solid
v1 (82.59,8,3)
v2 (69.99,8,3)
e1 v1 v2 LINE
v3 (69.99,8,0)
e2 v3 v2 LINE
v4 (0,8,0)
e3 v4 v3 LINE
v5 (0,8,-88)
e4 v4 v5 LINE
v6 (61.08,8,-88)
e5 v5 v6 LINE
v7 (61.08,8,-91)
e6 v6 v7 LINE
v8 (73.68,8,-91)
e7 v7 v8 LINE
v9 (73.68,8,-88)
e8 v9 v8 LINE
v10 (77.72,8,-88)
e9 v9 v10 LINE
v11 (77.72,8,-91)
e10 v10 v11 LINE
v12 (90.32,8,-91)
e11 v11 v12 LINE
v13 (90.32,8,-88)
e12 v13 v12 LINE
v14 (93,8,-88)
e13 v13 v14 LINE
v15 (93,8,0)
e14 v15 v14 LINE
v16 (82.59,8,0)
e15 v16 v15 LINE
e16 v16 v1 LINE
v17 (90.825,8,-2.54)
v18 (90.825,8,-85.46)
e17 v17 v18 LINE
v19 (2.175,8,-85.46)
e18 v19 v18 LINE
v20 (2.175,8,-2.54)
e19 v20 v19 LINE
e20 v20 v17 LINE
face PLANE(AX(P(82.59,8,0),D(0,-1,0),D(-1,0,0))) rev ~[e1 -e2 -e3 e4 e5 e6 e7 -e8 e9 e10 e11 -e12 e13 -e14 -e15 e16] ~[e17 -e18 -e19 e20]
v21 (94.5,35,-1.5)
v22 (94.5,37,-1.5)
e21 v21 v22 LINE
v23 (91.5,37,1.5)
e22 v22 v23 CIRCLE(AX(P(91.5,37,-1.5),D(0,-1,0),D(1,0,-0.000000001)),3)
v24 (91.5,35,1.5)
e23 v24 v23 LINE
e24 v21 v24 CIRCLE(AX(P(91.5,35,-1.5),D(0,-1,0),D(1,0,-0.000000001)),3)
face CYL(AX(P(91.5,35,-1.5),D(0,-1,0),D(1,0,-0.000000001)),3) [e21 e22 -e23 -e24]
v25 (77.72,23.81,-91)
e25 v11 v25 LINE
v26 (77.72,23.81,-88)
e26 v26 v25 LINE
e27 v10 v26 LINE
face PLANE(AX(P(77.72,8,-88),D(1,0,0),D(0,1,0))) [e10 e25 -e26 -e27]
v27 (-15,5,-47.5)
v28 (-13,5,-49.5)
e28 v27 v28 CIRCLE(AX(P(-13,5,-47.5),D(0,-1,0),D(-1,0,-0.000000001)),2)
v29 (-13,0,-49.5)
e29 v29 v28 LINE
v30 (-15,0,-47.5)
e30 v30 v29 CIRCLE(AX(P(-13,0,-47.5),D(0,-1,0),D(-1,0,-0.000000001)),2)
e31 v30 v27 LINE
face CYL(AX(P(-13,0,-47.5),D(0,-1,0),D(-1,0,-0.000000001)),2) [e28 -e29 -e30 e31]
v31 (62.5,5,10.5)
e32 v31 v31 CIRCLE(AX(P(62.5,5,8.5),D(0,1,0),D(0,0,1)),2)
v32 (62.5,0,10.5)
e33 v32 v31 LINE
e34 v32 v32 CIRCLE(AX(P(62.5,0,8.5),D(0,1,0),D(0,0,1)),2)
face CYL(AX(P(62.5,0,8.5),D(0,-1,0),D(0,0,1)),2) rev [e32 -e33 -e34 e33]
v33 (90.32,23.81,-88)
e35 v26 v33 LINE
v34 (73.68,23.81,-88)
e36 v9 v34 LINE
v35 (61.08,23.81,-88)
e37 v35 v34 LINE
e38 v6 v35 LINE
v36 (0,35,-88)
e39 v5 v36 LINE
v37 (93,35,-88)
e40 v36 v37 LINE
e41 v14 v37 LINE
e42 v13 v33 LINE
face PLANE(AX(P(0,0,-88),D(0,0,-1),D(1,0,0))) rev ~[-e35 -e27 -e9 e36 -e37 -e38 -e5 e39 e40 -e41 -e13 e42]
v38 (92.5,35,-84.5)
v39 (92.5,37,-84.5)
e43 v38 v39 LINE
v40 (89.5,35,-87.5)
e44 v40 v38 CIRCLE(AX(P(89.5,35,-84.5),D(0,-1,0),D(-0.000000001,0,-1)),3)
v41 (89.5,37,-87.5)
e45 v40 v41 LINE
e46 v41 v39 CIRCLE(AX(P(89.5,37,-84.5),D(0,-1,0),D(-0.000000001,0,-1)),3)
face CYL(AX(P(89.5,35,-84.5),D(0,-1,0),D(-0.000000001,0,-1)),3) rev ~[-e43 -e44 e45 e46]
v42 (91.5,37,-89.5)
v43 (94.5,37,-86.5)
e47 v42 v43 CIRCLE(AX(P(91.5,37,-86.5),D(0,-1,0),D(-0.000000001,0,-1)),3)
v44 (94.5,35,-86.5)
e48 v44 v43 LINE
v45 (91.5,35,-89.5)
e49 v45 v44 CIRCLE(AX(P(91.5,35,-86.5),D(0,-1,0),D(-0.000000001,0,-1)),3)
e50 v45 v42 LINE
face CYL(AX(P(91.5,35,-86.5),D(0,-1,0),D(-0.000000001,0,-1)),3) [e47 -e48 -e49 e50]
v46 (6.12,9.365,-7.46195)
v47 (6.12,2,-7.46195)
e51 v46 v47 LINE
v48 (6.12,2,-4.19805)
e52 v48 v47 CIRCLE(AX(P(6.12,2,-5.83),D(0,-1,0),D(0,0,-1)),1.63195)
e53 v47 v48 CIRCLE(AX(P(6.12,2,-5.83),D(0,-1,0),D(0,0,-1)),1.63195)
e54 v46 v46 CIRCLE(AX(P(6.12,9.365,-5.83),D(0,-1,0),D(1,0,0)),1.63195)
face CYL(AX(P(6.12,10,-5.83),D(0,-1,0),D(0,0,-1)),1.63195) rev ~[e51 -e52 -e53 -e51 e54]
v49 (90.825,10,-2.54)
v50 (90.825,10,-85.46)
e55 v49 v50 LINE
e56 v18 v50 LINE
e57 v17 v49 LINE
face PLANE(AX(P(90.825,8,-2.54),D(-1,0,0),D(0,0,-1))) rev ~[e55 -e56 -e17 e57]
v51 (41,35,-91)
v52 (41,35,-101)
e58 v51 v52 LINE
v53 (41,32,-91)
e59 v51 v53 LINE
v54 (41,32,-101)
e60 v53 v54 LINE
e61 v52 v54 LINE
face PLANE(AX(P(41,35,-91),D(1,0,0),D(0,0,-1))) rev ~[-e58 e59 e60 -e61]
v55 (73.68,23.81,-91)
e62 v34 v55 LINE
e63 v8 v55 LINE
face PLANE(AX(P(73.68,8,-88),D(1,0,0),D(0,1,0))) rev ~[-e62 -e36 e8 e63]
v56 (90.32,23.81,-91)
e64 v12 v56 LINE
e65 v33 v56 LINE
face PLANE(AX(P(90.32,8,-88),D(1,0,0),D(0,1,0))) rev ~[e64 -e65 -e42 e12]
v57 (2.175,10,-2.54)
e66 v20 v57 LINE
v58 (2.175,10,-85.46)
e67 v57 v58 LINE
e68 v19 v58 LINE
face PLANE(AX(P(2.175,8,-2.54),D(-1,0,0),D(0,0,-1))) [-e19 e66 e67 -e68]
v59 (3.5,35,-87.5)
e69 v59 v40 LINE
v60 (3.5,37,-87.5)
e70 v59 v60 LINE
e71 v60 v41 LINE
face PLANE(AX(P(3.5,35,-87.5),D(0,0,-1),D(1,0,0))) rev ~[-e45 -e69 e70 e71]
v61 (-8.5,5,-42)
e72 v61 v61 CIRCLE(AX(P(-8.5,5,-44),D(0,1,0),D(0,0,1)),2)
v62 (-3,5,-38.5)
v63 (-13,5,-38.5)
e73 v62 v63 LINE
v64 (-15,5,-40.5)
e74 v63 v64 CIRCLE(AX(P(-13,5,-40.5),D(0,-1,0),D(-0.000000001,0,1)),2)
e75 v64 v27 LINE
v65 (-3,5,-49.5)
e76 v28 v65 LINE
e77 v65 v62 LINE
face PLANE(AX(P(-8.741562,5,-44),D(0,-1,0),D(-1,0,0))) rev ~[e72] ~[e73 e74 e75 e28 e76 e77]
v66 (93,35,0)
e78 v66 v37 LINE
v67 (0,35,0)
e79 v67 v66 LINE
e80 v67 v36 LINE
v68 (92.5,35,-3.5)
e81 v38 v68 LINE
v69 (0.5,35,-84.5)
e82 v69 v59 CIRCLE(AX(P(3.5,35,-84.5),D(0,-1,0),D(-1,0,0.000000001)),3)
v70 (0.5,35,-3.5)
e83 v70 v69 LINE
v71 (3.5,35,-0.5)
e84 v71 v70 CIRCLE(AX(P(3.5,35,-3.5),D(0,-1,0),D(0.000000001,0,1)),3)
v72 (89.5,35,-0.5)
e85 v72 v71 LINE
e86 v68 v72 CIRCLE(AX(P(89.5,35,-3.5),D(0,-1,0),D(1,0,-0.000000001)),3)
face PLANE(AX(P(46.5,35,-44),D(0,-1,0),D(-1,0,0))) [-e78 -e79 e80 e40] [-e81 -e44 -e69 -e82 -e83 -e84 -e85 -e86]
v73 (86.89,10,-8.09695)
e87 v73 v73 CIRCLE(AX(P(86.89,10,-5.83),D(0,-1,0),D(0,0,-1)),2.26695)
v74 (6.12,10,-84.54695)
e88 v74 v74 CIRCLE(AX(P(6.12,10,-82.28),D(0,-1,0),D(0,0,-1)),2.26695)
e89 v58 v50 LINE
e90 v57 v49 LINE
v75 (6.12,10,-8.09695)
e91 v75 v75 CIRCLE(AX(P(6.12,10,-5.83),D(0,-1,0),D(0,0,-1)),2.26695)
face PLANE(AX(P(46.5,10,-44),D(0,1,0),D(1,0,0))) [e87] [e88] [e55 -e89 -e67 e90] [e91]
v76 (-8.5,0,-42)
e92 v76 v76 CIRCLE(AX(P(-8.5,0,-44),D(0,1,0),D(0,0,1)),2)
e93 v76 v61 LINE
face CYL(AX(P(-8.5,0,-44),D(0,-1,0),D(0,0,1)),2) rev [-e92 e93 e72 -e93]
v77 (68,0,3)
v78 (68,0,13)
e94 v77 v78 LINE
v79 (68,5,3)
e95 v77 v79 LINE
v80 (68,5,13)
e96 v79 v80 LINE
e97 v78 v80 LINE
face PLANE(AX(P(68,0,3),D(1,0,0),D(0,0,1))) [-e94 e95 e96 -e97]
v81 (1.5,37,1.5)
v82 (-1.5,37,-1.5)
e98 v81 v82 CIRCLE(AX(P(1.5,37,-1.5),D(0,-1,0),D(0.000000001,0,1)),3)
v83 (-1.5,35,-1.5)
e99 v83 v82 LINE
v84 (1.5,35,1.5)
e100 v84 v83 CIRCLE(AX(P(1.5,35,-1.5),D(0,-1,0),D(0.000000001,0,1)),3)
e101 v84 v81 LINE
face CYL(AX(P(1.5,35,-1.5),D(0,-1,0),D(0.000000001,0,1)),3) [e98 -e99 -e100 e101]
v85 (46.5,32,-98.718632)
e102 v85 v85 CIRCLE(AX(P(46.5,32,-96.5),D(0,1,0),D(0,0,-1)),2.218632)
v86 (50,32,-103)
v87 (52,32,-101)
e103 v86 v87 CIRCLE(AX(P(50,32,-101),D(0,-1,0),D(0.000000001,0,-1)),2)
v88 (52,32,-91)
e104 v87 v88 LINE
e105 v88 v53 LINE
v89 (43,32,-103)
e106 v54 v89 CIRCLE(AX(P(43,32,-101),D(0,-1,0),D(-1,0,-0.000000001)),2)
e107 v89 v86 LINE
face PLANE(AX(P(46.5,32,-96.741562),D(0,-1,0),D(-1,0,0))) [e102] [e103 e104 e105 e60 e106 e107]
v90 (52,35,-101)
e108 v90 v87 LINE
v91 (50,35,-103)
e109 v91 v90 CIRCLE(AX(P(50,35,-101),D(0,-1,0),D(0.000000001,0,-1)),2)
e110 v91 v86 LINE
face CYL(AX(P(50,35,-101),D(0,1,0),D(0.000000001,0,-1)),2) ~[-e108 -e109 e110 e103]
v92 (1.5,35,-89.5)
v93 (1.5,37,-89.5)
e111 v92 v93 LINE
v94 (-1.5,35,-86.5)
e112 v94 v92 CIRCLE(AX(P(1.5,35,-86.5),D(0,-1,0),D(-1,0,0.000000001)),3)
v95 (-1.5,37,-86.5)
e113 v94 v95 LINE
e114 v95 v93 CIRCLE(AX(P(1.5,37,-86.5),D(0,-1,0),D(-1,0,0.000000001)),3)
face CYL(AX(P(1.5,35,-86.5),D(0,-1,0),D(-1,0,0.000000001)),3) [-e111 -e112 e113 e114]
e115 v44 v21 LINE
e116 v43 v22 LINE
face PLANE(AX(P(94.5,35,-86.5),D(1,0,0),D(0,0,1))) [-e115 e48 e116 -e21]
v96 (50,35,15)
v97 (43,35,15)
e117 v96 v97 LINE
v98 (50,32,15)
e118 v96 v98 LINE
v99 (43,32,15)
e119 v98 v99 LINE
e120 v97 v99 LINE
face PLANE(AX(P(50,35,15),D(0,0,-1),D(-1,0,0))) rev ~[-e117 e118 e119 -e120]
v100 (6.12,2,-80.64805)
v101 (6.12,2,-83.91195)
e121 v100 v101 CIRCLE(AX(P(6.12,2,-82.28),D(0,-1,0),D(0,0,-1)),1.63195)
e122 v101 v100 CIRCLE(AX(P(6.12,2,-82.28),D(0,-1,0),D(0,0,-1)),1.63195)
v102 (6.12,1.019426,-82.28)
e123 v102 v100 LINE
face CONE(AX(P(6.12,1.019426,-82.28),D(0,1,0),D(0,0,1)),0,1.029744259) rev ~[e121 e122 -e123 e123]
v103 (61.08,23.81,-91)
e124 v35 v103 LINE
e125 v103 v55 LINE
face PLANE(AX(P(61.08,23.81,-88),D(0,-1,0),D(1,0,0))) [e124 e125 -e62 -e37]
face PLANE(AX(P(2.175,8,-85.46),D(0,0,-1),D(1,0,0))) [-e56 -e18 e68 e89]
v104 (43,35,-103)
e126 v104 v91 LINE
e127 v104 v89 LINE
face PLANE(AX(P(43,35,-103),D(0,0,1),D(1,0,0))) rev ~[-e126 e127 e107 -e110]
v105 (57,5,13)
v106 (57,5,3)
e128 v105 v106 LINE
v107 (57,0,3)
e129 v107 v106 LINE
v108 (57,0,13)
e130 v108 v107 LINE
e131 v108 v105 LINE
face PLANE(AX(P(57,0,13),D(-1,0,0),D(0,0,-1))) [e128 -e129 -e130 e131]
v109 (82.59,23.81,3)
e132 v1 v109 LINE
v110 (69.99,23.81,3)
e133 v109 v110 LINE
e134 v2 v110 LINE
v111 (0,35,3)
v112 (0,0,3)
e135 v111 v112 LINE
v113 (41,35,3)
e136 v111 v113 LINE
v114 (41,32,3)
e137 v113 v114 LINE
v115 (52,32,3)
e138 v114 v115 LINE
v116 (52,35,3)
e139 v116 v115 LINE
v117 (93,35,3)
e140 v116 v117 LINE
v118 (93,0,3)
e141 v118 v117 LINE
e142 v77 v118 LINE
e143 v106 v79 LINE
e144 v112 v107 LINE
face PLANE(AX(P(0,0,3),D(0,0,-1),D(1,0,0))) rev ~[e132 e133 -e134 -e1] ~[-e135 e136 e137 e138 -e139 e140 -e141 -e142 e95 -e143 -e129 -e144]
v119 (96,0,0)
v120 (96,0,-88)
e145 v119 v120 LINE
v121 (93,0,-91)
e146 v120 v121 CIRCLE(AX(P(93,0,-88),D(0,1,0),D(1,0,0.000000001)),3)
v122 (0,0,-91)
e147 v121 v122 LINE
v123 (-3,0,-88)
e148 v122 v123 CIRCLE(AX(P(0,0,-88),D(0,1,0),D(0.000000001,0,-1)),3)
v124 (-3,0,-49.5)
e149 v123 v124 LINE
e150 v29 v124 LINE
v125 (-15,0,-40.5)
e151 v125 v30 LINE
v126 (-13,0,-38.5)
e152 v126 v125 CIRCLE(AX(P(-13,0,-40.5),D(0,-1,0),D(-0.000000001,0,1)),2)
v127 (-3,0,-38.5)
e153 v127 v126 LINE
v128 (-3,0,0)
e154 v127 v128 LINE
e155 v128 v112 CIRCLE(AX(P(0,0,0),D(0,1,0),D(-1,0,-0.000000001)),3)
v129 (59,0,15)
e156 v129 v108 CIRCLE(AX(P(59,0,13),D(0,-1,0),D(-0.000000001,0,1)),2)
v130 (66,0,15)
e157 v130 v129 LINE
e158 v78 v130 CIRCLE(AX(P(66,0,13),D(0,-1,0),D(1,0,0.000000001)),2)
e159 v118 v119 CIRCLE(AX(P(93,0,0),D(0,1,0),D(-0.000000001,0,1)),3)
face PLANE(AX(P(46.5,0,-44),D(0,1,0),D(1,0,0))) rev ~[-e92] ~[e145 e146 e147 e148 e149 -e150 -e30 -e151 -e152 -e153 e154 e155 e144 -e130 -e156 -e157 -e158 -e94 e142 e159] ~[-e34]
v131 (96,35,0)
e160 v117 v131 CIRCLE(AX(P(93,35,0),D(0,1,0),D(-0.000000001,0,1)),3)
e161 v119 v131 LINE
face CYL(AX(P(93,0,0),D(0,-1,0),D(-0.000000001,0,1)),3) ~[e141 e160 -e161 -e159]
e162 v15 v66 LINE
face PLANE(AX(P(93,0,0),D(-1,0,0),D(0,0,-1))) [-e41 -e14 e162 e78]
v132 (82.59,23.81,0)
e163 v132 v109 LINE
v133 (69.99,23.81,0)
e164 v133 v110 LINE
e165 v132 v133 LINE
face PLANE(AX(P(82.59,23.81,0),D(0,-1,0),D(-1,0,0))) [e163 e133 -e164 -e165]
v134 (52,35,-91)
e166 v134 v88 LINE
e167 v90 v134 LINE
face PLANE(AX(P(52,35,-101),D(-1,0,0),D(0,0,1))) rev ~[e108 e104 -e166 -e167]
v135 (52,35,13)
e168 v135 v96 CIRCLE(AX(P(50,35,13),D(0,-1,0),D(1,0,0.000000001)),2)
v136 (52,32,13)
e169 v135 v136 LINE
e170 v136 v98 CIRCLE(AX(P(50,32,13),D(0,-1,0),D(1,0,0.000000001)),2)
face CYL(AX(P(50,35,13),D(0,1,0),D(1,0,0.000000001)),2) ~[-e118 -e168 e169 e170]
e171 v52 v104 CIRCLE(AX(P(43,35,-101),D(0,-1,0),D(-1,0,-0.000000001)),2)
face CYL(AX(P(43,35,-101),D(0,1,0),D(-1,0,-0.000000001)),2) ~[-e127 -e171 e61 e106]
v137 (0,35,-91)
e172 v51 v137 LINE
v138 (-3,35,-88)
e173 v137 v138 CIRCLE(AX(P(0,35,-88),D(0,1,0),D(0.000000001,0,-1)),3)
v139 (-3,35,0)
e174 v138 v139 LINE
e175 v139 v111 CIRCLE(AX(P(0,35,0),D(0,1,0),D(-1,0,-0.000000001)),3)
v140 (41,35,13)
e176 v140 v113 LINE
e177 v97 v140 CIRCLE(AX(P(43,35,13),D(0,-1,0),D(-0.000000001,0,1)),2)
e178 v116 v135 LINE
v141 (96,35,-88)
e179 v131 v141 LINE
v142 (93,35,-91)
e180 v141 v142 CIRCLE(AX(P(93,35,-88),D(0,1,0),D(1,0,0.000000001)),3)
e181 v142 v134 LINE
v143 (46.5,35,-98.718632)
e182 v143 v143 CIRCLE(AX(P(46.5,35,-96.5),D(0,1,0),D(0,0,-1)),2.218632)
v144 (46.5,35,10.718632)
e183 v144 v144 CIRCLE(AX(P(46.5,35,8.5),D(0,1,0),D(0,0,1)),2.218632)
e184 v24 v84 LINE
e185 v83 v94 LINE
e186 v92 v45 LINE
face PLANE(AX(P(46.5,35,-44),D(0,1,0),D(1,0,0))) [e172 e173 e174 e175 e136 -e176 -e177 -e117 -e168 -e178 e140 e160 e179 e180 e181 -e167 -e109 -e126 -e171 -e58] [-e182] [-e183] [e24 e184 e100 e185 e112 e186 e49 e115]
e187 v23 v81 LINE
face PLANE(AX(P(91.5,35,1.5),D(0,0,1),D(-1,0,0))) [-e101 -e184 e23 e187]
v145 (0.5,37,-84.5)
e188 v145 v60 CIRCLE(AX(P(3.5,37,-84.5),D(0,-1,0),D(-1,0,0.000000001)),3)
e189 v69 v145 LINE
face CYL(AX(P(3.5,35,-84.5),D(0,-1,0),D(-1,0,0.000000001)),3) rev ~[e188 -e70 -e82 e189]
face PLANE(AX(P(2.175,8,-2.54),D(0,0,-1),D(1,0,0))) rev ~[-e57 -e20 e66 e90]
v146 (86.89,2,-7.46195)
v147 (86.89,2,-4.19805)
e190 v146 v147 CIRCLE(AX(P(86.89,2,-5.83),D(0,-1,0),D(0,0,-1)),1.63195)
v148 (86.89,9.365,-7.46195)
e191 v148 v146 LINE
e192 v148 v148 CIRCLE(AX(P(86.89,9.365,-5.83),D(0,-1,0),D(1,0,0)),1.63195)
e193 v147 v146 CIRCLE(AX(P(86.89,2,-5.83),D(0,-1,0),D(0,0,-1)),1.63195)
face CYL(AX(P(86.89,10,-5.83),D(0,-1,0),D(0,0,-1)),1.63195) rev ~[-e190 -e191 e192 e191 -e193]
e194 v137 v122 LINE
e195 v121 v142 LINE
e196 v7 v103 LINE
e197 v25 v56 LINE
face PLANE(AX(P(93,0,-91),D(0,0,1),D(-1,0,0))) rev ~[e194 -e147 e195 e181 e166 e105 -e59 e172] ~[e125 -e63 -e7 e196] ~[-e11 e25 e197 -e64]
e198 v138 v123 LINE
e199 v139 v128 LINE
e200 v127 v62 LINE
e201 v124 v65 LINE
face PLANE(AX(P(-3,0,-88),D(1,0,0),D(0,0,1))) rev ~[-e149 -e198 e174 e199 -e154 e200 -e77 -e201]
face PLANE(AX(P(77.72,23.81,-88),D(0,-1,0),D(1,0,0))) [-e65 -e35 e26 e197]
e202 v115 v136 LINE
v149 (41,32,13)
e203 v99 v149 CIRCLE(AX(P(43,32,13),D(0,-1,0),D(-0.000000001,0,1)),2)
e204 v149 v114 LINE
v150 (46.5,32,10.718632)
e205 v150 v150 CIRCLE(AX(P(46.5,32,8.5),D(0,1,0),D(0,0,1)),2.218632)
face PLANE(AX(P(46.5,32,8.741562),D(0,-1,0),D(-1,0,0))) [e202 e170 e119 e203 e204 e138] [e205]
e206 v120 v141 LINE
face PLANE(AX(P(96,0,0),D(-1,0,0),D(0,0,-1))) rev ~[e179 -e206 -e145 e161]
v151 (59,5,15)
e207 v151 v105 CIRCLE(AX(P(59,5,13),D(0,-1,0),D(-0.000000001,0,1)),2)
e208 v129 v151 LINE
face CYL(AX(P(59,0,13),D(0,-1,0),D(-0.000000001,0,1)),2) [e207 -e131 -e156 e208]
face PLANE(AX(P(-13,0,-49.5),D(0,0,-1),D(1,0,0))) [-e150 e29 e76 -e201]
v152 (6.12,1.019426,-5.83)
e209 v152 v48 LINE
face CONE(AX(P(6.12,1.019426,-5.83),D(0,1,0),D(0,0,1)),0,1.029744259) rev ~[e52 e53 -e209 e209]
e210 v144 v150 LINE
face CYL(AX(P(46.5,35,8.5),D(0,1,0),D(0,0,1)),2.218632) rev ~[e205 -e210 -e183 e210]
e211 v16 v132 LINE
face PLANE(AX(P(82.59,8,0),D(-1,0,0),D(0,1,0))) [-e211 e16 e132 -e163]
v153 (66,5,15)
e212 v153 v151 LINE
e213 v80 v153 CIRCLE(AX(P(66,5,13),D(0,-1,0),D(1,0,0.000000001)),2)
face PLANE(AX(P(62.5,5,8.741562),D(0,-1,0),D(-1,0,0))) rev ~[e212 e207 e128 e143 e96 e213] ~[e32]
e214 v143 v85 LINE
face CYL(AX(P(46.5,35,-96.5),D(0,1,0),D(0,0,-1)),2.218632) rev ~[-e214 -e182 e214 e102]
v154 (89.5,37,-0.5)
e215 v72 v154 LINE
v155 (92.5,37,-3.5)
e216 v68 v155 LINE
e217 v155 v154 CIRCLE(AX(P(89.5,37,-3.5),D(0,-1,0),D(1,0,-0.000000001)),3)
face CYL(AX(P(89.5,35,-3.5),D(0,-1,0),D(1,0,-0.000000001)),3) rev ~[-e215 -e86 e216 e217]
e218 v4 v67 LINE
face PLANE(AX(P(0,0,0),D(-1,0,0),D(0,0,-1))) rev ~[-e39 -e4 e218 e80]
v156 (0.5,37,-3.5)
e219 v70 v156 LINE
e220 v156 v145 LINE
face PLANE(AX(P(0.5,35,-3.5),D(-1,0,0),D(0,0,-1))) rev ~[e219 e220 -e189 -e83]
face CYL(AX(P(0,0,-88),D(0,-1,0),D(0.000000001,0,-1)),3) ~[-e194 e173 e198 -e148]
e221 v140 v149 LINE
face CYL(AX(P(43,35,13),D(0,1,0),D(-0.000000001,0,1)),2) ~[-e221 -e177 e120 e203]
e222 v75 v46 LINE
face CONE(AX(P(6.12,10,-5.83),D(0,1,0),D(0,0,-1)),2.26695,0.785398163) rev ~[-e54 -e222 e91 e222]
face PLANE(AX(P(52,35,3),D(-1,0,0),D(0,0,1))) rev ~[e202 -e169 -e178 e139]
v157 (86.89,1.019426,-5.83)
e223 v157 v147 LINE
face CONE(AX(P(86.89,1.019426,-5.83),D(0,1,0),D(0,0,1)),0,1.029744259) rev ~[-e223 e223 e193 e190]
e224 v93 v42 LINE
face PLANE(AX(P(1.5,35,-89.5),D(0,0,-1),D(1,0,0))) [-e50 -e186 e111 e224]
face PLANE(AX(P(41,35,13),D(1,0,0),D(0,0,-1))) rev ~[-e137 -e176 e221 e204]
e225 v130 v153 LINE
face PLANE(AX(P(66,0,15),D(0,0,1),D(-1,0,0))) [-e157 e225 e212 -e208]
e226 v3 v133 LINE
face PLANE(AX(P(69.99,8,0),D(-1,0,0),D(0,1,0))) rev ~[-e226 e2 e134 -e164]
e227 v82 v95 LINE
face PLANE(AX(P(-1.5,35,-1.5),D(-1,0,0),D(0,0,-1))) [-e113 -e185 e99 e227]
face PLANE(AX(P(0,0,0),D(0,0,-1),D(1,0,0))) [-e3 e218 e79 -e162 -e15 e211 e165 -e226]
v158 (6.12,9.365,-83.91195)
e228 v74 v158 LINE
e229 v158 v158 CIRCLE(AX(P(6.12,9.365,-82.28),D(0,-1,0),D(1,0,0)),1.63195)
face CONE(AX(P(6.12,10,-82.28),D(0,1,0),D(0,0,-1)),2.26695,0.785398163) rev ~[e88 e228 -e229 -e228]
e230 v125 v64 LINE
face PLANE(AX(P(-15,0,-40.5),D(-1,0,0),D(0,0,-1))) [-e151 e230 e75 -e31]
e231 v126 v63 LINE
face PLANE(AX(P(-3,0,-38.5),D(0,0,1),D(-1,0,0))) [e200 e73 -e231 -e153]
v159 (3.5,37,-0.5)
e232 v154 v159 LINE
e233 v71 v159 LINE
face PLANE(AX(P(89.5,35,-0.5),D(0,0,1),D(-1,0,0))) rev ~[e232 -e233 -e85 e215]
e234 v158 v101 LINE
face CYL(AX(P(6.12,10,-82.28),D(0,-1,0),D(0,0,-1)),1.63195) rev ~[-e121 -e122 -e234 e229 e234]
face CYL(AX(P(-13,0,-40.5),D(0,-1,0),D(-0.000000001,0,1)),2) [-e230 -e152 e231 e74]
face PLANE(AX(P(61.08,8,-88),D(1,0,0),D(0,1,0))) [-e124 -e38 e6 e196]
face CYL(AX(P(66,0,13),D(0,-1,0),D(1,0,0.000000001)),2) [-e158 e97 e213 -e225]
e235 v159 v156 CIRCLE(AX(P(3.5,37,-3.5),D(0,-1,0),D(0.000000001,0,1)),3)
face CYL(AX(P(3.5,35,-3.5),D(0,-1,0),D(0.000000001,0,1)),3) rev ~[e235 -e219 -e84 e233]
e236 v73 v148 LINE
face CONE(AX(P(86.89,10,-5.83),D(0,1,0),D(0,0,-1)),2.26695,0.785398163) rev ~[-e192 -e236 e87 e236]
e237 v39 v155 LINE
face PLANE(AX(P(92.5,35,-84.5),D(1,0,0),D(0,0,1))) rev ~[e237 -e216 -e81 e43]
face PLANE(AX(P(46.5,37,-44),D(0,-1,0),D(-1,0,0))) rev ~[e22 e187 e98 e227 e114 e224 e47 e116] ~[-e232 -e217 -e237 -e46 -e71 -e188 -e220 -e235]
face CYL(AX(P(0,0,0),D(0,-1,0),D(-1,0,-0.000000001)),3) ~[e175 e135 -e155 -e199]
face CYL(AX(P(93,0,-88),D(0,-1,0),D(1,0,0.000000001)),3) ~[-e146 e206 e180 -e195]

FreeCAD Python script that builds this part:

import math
import FreeCAD as App
import Part
import Sketcher
from FreeCAD import Vector
Q = App.Units.Quantity

doc = App.newDocument("Part")
params = doc.addObject("Spreadsheet::Sheet", "Params")
for row, (alias, value) in enumerate([
    ("sketch1_radius", "3 mm"),
    ("sketch1_width", "93 mm"),
    ("sketch1_height", "88 mm"),
    ("pad1_length", "35 mm"),
    ("sketch2_width", "93 mm"),
    ("sketch2_height", "88 mm"),
    ("pad2_length", "8 mm"),
    ("sketch3_diameter", "4 mm"),
    ("sketch3_radius", "3 mm"),
    ("sketch3_width", "57 mm"),
    ("sketch3_width2", "7 mm"),
    ("sketch3_width3", "25 mm"),
    ("pad3_length", "5 mm"),
    ("sketch4_radius", "2 mm"),
    ("sketch4_width", "11 mm"),
    ("sketch4_height", "10 mm"),
    ("pad4_length", "3 mm"),
    ("sketch5_width", "88.65 mm"),
    ("sketch5_height", "82.92 mm"),
    ("pad5_length", "2 mm"),
    ("sketch6_width", "12.6 mm"),
    ("sketch6_height", "15.81 mm"),
    ("sketch7_width", "12.6 mm"),
    ("sketch7_height", "15.81 mm"),
    ("hole_diameter", "3.2639 mm"),
    ("hole_depth", "8 mm"),
    ("hole_csink_diameter", "4.5339 mm"),
    ("sketch9_radius", "3 mm"),
    ("sketch9_width", "90 mm"),
    ("sketch9_width2", "86 mm"),
    ("sketch9_height", "85 mm"),
    ("sketch9_height2", "81 mm"),
    ("pad6_length", "2 mm"),
], start=1):
    params.set(f"A{row}", alias)
    params.set(f"B{row}", "=" + value)
    params.setAlias(f"B{row}", alias)

body = doc.addObject("PartDesign::Body", "Body")

sketch1 = body.newObject("Sketcher::SketchObject", "Sketch")
sketch1.AttachmentSupport = (doc.getObject("XZ_Plane"), [""])
sketch1.MapMode = "FlatFace"
sketch1.addGeometry(Part.LineSegment(Vector(0, 3, 0), Vector(93, 3, 0)), False)
sketch1.addGeometry(Part.ArcOfCircle(Part.Circle(Vector(93, 0, 0), Vector(0, 0, 1), 3), math.radians(0), math.radians(90)), False)
sketch1.addGeometry(Part.LineSegment(Vector(96, 0, 0), Vector(96, -88, 0)), False)
sketch1.addGeometry(Part.ArcOfCircle(Part.Circle(Vector(93, -88, 0), Vector(0, 0, 1), 3), math.radians(-90), math.radians(0)), False)
sketch1.addGeometry(Part.LineSegment(Vector(93, -91, 0), Vector(0, -91, 0)), False)
sketch1.addGeometry(Part.ArcOfCircle(Part.Circle(Vector(0, -88, 0), Vector(0, 0, 1), 3), math.radians(180), math.radians(270)), False)
sketch1.addGeometry(Part.LineSegment(Vector(-3, -88, 0), Vector(-3, 0, 0)), False)
sketch1.addGeometry(Part.ArcOfCircle(Part.Circle(Vector(0, 0, 0), Vector(0, 0, 1), 3), math.radians(90), math.radians(180)), False)
sketch1.addGeometry(Part.LineSegment(Vector(93, 0, 0), Vector(0, 0, 0)), False)
sketch1.addGeometry(Part.LineSegment(Vector(0, 0, 0), Vector(0, -88, 0)), False)
sketch1.addGeometry(Part.LineSegment(Vector(0, -88, 0), Vector(93, -88, 0)), False)
sketch1.addGeometry(Part.LineSegment(Vector(93, -88, 0), Vector(93, 0, 0)), False)
sketch1.addConstraint(Sketcher.Constraint("Tangent", 0, 2, 1, 2))
sketch1.addConstraint(Sketcher.Constraint("Tangent", 1, 1, 2, 1))
sketch1.addConstraint(Sketcher.Constraint("Tangent", 2, 2, 3, 2))
sketch1.addConstraint(Sketcher.Constraint("Tangent", 3, 1, 4, 1))
sketch1.addConstraint(Sketcher.Constraint("Tangent", 4, 2, 5, 2))
sketch1.addConstraint(Sketcher.Constraint("Tangent", 5, 1, 6, 1))
sketch1.addConstraint(Sketcher.Constraint("Tangent", 6, 2, 7, 2))
sketch1.addConstraint(Sketcher.Constraint("Tangent", 7, 1, 0, 1))
sketch1.addConstraint(Sketcher.Constraint("Coincident", 8, 2, 9, 1))
sketch1.addConstraint(Sketcher.Constraint("Coincident", 9, 2, 10, 1))
sketch1.addConstraint(Sketcher.Constraint("Coincident", 10, 2, 11, 1))
sketch1.addConstraint(Sketcher.Constraint("Coincident", 11, 2, 8, 1))
sketch1.addConstraint(Sketcher.Constraint("Horizontal", 0))
sketch1.addConstraint(Sketcher.Constraint("Vertical", 2))
sketch1.addConstraint(Sketcher.Constraint("Horizontal", 4))
sketch1.addConstraint(Sketcher.Constraint("Vertical", 6))
sketch1.addConstraint(Sketcher.Constraint("Horizontal", 8))
sketch1.addConstraint(Sketcher.Constraint("Vertical", 9))
sketch1.addConstraint(Sketcher.Constraint("Horizontal", 10))
sketch1.addConstraint(Sketcher.Constraint("Vertical", 11))
sketch1.addConstraint(Sketcher.Constraint("Coincident", 7, 3, -1, 1))
sketch1.addConstraint(Sketcher.Constraint("Coincident", 8, 2, -1, 1))
sketch1.addConstraint(Sketcher.Constraint("Coincident", 9, 2, 5, 3))
sketch1.addConstraint(Sketcher.Constraint("Coincident", 10, 2, 3, 3))
sketch1.addConstraint(Sketcher.Constraint("Equal", 1, 3))
sketch1.addConstraint(Sketcher.Constraint("Radius", 1, Q("3 mm")))
sketch1.addConstraint(Sketcher.Constraint("DistanceX", 0, 1, 0, 2, Q("93 mm")))
sketch1.addConstraint(Sketcher.Constraint("DistanceY", 2, 2, 2, 1, Q("88 mm")))
sketch1.setExpression("Constraints[25]", "Params.sketch1_radius")
sketch1.setExpression("Constraints[26]", "Params.sketch1_width")
sketch1.setExpression("Constraints[27]", "Params.sketch1_height")
pad1 = body.newObject("PartDesign::Pad", "Pad")
pad1.Profile = sketch1
pad1.setExpression("Length", "Params.pad1_length")
pad1.Reversed = True

sketch2 = body.newObject("Sketcher::SketchObject", "Sketch001")
sketch2.AttachmentSupport = (doc.getObject("XZ_Plane"), [""])
sketch2.MapMode = "FlatFace"
sketch2.addGeometry(Part.LineSegment(Vector(0, -88, 0), Vector(0, 0, 0)), False)
sketch2.addGeometry(Part.LineSegment(Vector(0, 0, 0), Vector(93, 0, 0)), False)
sketch2.addGeometry(Part.LineSegment(Vector(93, 0, 0), Vector(93, -88, 0)), False)
sketch2.addGeometry(Part.LineSegment(Vector(93, -88, 0), Vector(0, -88, 0)), False)
sketch2.addConstraint(Sketcher.Constraint("Coincident", 0, 2, 1, 1))
sketch2.addConstraint(Sketcher.Constraint("Coincident", 1, 2, 2, 1))
sketch2.addConstraint(Sketcher.Constraint("Coincident", 2, 2, 3, 1))
sketch2.addConstraint(Sketcher.Constraint("Coincident", 3, 2, 0, 1))
sketch2.addConstraint(Sketcher.Constraint("Vertical", 0))
sketch2.addConstraint(Sketcher.Constraint("Horizontal", 1))
sketch2.addConstraint(Sketcher.Constraint("Vertical", 2))
sketch2.addConstraint(Sketcher.Constraint("Horizontal", 3))
sketch2.addConstraint(Sketcher.Constraint("Coincident", 0, 2, -1, 1))
sketch2.addConstraint(Sketcher.Constraint("DistanceX", 1, 1, 1, 2, Q("93 mm")))
sketch2.addConstraint(Sketcher.Constraint("DistanceY", 0, 1, 0, 2, Q("88 mm")))
sketch2.setExpression("Constraints[9]", "Params.sketch2_width")
sketch2.setExpression("Constraints[10]", "Params.sketch2_height")
pad2 = body.newObject("PartDesign::Pad", "Pad001")
pad2.Profile = sketch2
pad2.setExpression("Length", "Params.pad2_length")
pad2.Reversed = True

sketch3 = body.newObject("Sketcher::SketchObject", "Sketch002")
sketch3.AttachmentSupport = (doc.getObject("XZ_Plane"), [""])
sketch3.MapMode = "FlatFace"
sketch3.addGeometry(Part.LineSegment(Vector(0, 3, 0), Vector(57, 3, 0)), False)
sketch3.addGeometry(Part.LineSegment(Vector(57, 3, 0), Vector(57, 13, 0)), False)
sketch3.addGeometry(Part.ArcOfCircle(Part.Circle(Vector(59, 13, 0), Vector(0, 0, 1), 2), math.radians(90), math.radians(180)), False)
sketch3.addGeometry(Part.LineSegment(Vector(59, 15, 0), Vector(66, 15, 0)), False)
sketch3.addGeometry(Part.ArcOfCircle(Part.Circle(Vector(66, 13, 0), Vector(0, 0, 1), 2), math.radians(0), math.radians(90)), False)
sketch3.addGeometry(Part.LineSegment(Vector(68, 13, 0), Vector(68, 3, 0)), False)
sketch3.addGeometry(Part.LineSegment(Vector(68, 3, 0), Vector(93, 3, 0)), False)
sketch3.addGeometry(Part.ArcOfCircle(Part.Circle(Vector(93, 0, 0), Vector(0, 0, 1), 3), math.radians(0), math.radians(90)), False)
sketch3.addGeometry(Part.LineSegment(Vector(96, 0, 0), Vector(96, -88, 0)), False)
sketch3.addGeometry(Part.ArcOfCircle(Part.Circle(Vector(93, -88, 0), Vector(0, 0, 1), 3), math.radians(-90), math.radians(0)), False)
sketch3.addGeometry(Part.LineSegment(Vector(93, -91, 0), Vector(0, -91, 0)), False)
sketch3.addGeometry(Part.ArcOfCircle(Part.Circle(Vector(0, -88, 0), Vector(0, 0, 1), 3), math.radians(180), math.radians(270)), False)
sketch3.addGeometry(Part.LineSegment(Vector(-3, -88, 0), Vector(-3, -49.5, 0)), False)
sketch3.addGeometry(Part.LineSegment(Vector(-3, -49.5, 0), Vector(-13, -49.5, 0)), False)
sketch3.addGeometry(Part.ArcOfCircle(Part.Circle(Vector(-13, -47.5, 0), Vector(0, 0, 1), 2), math.radians(-180), math.radians(-90)), False)
sketch3.addGeometry(Part.LineSegment(Vector(-15, -47.5, 0), Vector(-15, -40.5, 0)), False)
sketch3.addGeometry(Part.ArcOfCircle(Part.Circle(Vector(-13, -40.5, 0), Vector(0, 0, 1), 2), math.radians(90), math.radians(180)), False)
sketch3.addGeometry(Part.LineSegment(Vector(-13, -38.5, 0), Vector(-3, -38.5, 0)), False)
sketch3.addGeometry(Part.LineSegment(Vector(-3, -38.5, 0), Vector(-3, 0, 0)), False)
sketch3.addGeometry(Part.ArcOfCircle(Part.Circle(Vector(0, 0, 0), Vector(0, 0, 1), 3), math.radians(90), math.radians(180)), False)
sketch3.addGeometry(Part.LineSegment(Vector(93, 0, 0), Vector(0, 0, 0)), False)
sketch3.addGeometry(Part.LineSegment(Vector(0, 0, 0), Vector(0, -88, 0)), False)
sketch3.addGeometry(Part.LineSegment(Vector(0, -88, 0), Vector(93, -88, 0)), False)
sketch3.addGeometry(Part.LineSegment(Vector(93, -88, 0), Vector(93, 0, 0)), False)
sketch3.addGeometry(Part.Circle(Vector(62.5, 8.5, 0), Vector(0, 0, 1), 2), False)
sketch3.addGeometry(Part.Circle(Vector(-8.5, -44, 0), Vector(0, 0, 1), 2), False)
sketch3.addConstraint(Sketcher.Constraint("Coincident", 0, 2, 1, 1))
sketch3.addConstraint(Sketcher.Constraint("Tangent", 1, 2, 2, 2))
sketch3.addConstraint(Sketcher.Constraint("Tangent", 2, 1, 3, 1))
sketch3.addConstraint(Sketcher.Constraint("Tangent", 3, 2, 4, 2))
sketch3.addConstraint(Sketcher.Constraint("Tangent", 4, 1, 5, 1))
sketch3.addConstraint(Sketcher.Constraint("Coincident", 5, 2, 6, 1))
sketch3.addConstraint(Sketcher.Constraint("Tangent", 6, 2, 7, 2))
sketch3.addConstraint(Sketcher.Constraint("Tangent", 7, 1, 8, 1))
sketch3.addConstraint(Sketcher.Constraint("Tangent", 8, 2, 9, 2))
sketch3.addConstraint(Sketcher.Constraint("Tangent", 9, 1, 10, 1))
sketch3.addConstraint(Sketcher.Constraint("Tangent", 10, 2, 11, 2))
sketch3.addConstraint(Sketcher.Constraint("Tangent", 11, 1, 12, 1))
sketch3.addConstraint(Sketcher.Constraint("Coincident", 12, 2, 13, 1))
sketch3.addConstraint(Sketcher.Constraint("Tangent", 13, 2, 14, 2))
sketch3.addConstraint(Sketcher.Constraint("Tangent", 14, 1, 15, 1))
sketch3.addConstraint(Sketcher.Constraint("Tangent", 15, 2, 16, 2))
sketch3.addConstraint(Sketcher.Constraint("Tangent", 16, 1, 17, 1))
sketch3.addConstraint(Sketcher.Constraint("Coincident", 17, 2, 18, 1))
sketch3.addConstraint(Sketcher.Constraint("Tangent", 18, 2, 19, 2))
sketch3.addConstraint(Sketcher.Constraint("Tangent", 19, 1, 0, 1))
sketch3.addConstraint(Sketcher.Constraint("Coincident", 20, 2, 21, 1))
sketch3.addConstraint(Sketcher.Constraint("Coincident", 21, 2, 22, 1))
sketch3.addConstraint(Sketcher.Constraint("Coincident", 22, 2, 23, 1))
sketch3.addConstraint(Sketcher.Constraint("Coincident", 23, 2, 20, 1))
sketch3.addConstraint(Sketcher.Constraint("Horizontal", 0))
sketch3.addConstraint(Sketcher.Constraint("Vertical", 1))
sketch3.addConstraint(Sketcher.Constraint("Horizontal", 3))
sketch3.addConstraint(Sketcher.Constraint("Vertical", 5))
sketch3.addConstraint(Sketcher.Constraint("Horizontal", 6))
sketch3.addConstraint(Sketcher.Constraint("Vertical", 8))
sketch3.addConstraint(Sketcher.Constraint("Horizontal", 10))
sketch3.addConstraint(Sketcher.Constraint("Vertical", 12))
sketch3.addConstraint(Sketcher.Constraint("Horizontal", 13))
sketch3.addConstraint(Sketcher.Constraint("Vertical", 15))
sketch3.addConstraint(Sketcher.Constraint("Horizontal", 17))
sketch3.addConstraint(Sketcher.Constraint("Vertical", 18))
sketch3.addConstraint(Sketcher.Constraint("Horizontal", 20))
sketch3.addConstraint(Sketcher.Constraint("Vertical", 21))
sketch3.addConstraint(Sketcher.Constraint("Horizontal", 22))
sketch3.addConstraint(Sketcher.Constraint("Vertical", 23))
sketch3.addConstraint(Sketcher.Constraint("Coincident", 19, 3, -1, 1))
sketch3.addConstraint(Sketcher.Constraint("Coincident", 20, 2, -1, 1))
sketch3.addConstraint(Sketcher.Constraint("Coincident", 21, 2, 11, 3))
sketch3.addConstraint(Sketcher.Constraint("Coincident", 22, 2, 9, 3))
sketch3.addConstraint(Sketcher.Constraint("Coincident", 23, 2, 7, 3))
sketch3.addConstraint(Sketcher.Constraint("Equal", 2, 4))
sketch3.addConstraint(Sketcher.Constraint("Equal", 4, 14))
sketch3.addConstraint(Sketcher.Constraint("Equal", 14, 16))
sketch3.addConstraint(Sketcher.Constraint("Equal", 11, 19))
sketch3.addConstraint(Sketcher.Constraint("Equal", 16, 24))
sketch3.addConstraint(Sketcher.Constraint("Equal", 24, 25))
sketch3.addConstraint(Sketcher.Constraint("Equal", 17, 1))
sketch3.addConstraint(Sketcher.Constraint("Equal", 3, 15))
sketch3.addConstraint(Sketcher.Constraint("Equal", 12, 18))
sketch3.addConstraint(Sketcher.Constraint("Diameter", 24, Q("4 mm")))
sketch3.addConstraint(Sketcher.Constraint("Radius", 7, Q("3 mm")))
sketch3.addConstraint(Sketcher.Constraint("DistanceX", 0, 1, 0, 2, Q("57 mm")))
sketch3.addConstraint(Sketcher.Constraint("DistanceX", 3, 1, 3, 2, Q("7 mm")))
sketch3.addConstraint(Sketcher.Constraint("DistanceX", 6, 1, 6, 2, Q("25 mm")))
sketch3.addConstraint(Sketcher.Constraint("DistanceX", 13, 2, 13, 1, Q("10 mm")))
sketch3.addConstraint(Sketcher.Constraint("DistanceY", 8, 2, 8, 1, Q("88 mm")))
sketch3.addConstraint(Sketcher.Constraint("DistanceY", 25, 3, -1, 1, Q("44 mm")))
sketch3.addConstraint(Sketcher.Constraint("DistanceY", 16, 3, 24, 3, Q("49 mm")))
sketch3.addConstraint(Sketcher.Constraint("DistanceX", 25, 3, 24, 3, Q("71 mm")))
sketch3.addConstraint(Sketcher.Constraint("DistanceX", -1, 1, 24, 3, Q("62.5 mm")))
sketch3.setExpression("Constraints[54]", "Params.sketch3_diameter")
sketch3.setExpression("Constraints[55]", "Params.sketch3_radius")
sketch3.setExpression("Constraints[56]", "Params.sketch3_width")
sketch3.setExpression("Constraints[57]", "Params.sketch3_width2")
sketch3.setExpression("Constraints[58]", "Params.sketch3_width3")
pad3 = body.newObject("PartDesign::Pad", "Pad002")
pad3.Profile = sketch3
pad3.setExpression("Length", "Params.pad3_length")
pad3.Reversed = True

sketch4 = body.newObject("Sketcher::SketchObject", "Sketch003")
sketch4.AttachmentSupport = (doc.getObject("XZ_Plane"), [""])
sketch4.MapMode = "FlatFace"
sketch4.AttachmentOffset = App.Placement(Vector(0, 0, -35), App.Rotation())
sketch4.addGeometry(Part.LineSegment(Vector(52, 3, 0), Vector(41, 3, 0)), False)
sketch4.addGeometry(Part.LineSegment(Vector(41, 3, 0), Vector(41, 13, 0)), False)
sketch4.addGeometry(Part.ArcOfCircle(Part.Circle(Vector(43, 13, 0), Vector(0, 0, 1), 2), math.radians(90), math.radians(180)), False)
sketch4.addGeometry(Part.LineSegment(Vector(43, 15, 0), Vector(50, 15, 0)), False)
sketch4.addGeometry(Part.ArcOfCircle(Part.Circle(Vector(50, 13, 0), Vector(0, 0, 1), 2), math.radians(0), math.radians(90)), False)
sketch4.addGeometry(Part.LineSegment(Vector(52, 13, 0), Vector(52, 3, 0)), False)
sketch4.addGeometry(Part.Circle(Vector(46.5, 8.5, 0), Vector(0, 0, 1), 2.2), False)
sketch4.addGeometry(Part.LineSegment(Vector(50, -103, 0), Vector(43, -103, 0)), False)
sketch4.addGeometry(Part.ArcOfCircle(Part.Circle(Vector(43, -101, 0), Vector(0, 0, 1), 2), math.radians(-180), math.radians(-90)), False)
sketch4.addGeometry(Part.LineSegment(Vector(41, -101, 0), Vector(41, -91, 0)), False)
sketch4.addGeometry(Part.LineSegment(Vector(41, -91, 0), Vector(52, -91, 0)), False)
sketch4.addGeometry(Part.LineSegment(Vector(52, -91, 0), Vector(52, -101, 0)), False)
sketch4.addGeometry(Part.ArcOfCircle(Part.Circle(Vector(50, -101, 0), Vector(0, 0, 1), 2), math.radians(-90), math.radians(0)), False)
sketch4.addGeometry(Part.Circle(Vector(46.5, -96.5, 0), Vector(0, 0, 1), 2.2), False)
sketch4.addConstraint(Sketcher.Constraint("Coincident", 0, 2, 1, 1))
sketch4.addConstraint(Sketcher.Constraint("Tangent", 1, 2, 2, 2))
sketch4.addConstraint(Sketcher.Constraint("Tangent", 2, 1, 3, 1))
sketch4.addConstraint(Sketcher.Constraint("Tangent", 3, 2, 4, 2))
sketch4.addConstraint(Sketcher.Constraint("Tangent", 4, 1, 5, 1))
sketch4.addConstraint(Sketcher.Constraint("Coincident", 5, 2, 0, 1))
sketch4.addConstraint(Sketcher.Constraint("Tangent", 7, 2, 8, 2))
sketch4.addConstraint(Sketcher.Constraint("Tangent", 8, 1, 9, 1))
sketch4.addConstraint(Sketcher.Constraint("Coincident", 9, 2, 10, 1))
sketch4.addConstraint(Sketcher.Constraint("Coincident", 10, 2, 11, 1))
sketch4.addConstraint(Sketcher.Constraint("Tangent", 11, 2, 12, 2))
sketch4.addConstraint(Sketcher.Constraint("Tangent", 12, 1, 7, 1))
sketch4.addConstraint(Sketcher.Constraint("Horizontal", 0))
sketch4.addConstraint(Sketcher.Constraint("Vertical", 1))
sketch4.addConstraint(Sketcher.Constraint("Horizontal", 3))
sketch4.addConstraint(Sketcher.Constraint("Vertical", 5))
sketch4.addConstraint(Sketcher.Constraint("Horizontal", 7))
sketch4.addConstraint(Sketcher.Constraint("Vertical", 9))
sketch4.addConstraint(Sketcher.Constraint("Horizontal", 10))
sketch4.addConstraint(Sketcher.Constraint("Vertical", 11))
sketch4.addConstraint(Sketcher.Constraint("Equal", 2, 4))
sketch4.addConstraint(Sketcher.Constraint("Equal", 4, 8))
sketch4.addConstraint(Sketcher.Constraint("Equal", 8, 12))
sketch4.addConstraint(Sketcher.Constraint("Equal", 6, 13))
sketch4.addConstraint(Sketcher.Constraint("Vertical", 2, 3, 8, 3))
sketch4.addConstraint(Sketcher.Constraint("Vertical", 4, 3, 12, 3))
sketch4.addConstraint(Sketcher.Constraint("Vertical", 6, 3, 13, 3))
sketch4.addConstraint(Sketcher.Constraint("Equal", 5, 9))
sketch4.addConstraint(Sketcher.Constraint("Radius", 2, Q("2 mm")))
sketch4.addConstraint(Sketcher.Constraint("DistanceX", 0, 2, 0, 1, Q("11 mm")))
sketch4.addConstraint(Sketcher.Constraint("DistanceY", 1, 1, 1, 2, Q("10 mm")))
sketch4.addConstraint(Sketcher.Constraint("DistanceX", -1, 1, 2, 3, Q("43 mm")))
sketch4.addConstraint(Sketcher.Constraint("DistanceY", -1, 1, 2, 3, Q("13 mm")))
sketch4.addConstraint(Sketcher.Constraint("DistanceY", 8, 3, -1, 1, Q("101 mm")))
sketch4.addConstraint(Sketcher.Constraint("DistanceY", 13, 3, 6, 3, Q("105 mm")))
sketch4.addConstraint(Sketcher.Constraint("DistanceX", -1, 1, 6, 3, Q("46.5 mm")))
sketch4.addConstraint(Sketcher.Constraint("DistanceY", -1, 1, 6, 3, Q("8.5 mm")))
sketch4.addConstraint(Sketcher.Constraint("Diameter", 6, Q("4.437264 mm")))
sketch4.setExpression("Constraints[28]", "Params.sketch4_radius")
sketch4.setExpression("Constraints[29]", "Params.sketch4_width")
sketch4.setExpression("Constraints[30]", "Params.sketch4_height")
pad4 = body.newObject("PartDesign::Pad", "Pad003")
pad4.Profile = sketch4
pad4.setExpression("Length", "Params.pad4_length")

sketch5 = body.newObject("Sketcher::SketchObject", "Sketch004")
sketch5.AttachmentSupport = (doc.getObject("XZ_Plane"), [""])
sketch5.MapMode = "FlatFace"
sketch5.AttachmentOffset = App.Placement(Vector(0, 0, -8), App.Rotation())
sketch5.addGeometry(Part.LineSegment(Vector(2, -85, 0), Vector(2, -3, 0)), False)
sketch5.addGeometry(Part.LineSegment(Vector(2, -3, 0), Vector(91, -3, 0)), False)
sketch5.addGeometry(Part.LineSegment(Vector(91, -3, 0), Vector(91, -85, 0)), False)
sketch5.addGeometry(Part.LineSegment(Vector(91, -85, 0), Vector(2, -85, 0)), False)
sketch5.addConstraint(Sketcher.Constraint("Coincident", 0, 2, 1, 1))
sketch5.addConstraint(Sketcher.Constraint("Coincident", 1, 2, 2, 1))
sketch5.addConstraint(Sketcher.Constraint("Coincident", 2, 2, 3, 1))
sketch5.addConstraint(Sketcher.Constraint("Coincident", 3, 2, 0, 1))
sketch5.addConstraint(Sketcher.Constraint("Vertical", 0))
sketch5.addConstraint(Sketcher.Constraint("Horizontal", 1))
sketch5.addConstraint(Sketcher.Constraint("Vertical", 2))
sketch5.addConstraint(Sketcher.Constraint("Horizontal", 3))
sketch5.addConstraint(Sketcher.Constraint("DistanceX", 1, 1, 1, 2, Q("88.65 mm")))
sketch5.addConstraint(Sketcher.Constraint("DistanceY", 0, 1, 0, 2, Q("82.92 mm")))
sketch5.addConstraint(Sketcher.Constraint("DistanceY", 0, 2, -1, 1, Q("2.54 mm")))
sketch5.addConstraint(Sketcher.Constraint("DistanceX", -1, 1, 0, 2, Q("2.175 mm")))
sketch5.setExpression("Constraints[8]", "Params.sketch5_width")
sketch5.setExpression("Constraints[9]", "Params.sketch5_height")
pad5 = body.newObject("PartDesign::Pad", "Pad004")
pad5.Profile = sketch5
pad5.setExpression("Length", "Params.pad5_length")
pad5.Reversed = True

sketch6 = body.newObject("Sketcher::SketchObject", "Sketch005")
sketch6.AttachmentSupport = (doc.getObject("XY_Plane"), [""])
sketch6.MapMode = "FlatFace"
sketch6.AttachmentOffset = App.Placement(Vector(0, 0, -88), App.Rotation())
sketch6.addGeometry(Part.LineSegment(Vector(61, 24, 0), Vector(61, 8, 0)), False)
sketch6.addGeometry(Part.LineSegment(Vector(61, 8, 0), Vector(74, 8, 0)), False)
sketch6.addGeometry(Part.LineSegment(Vector(74, 8, 0), Vector(74, 24, 0)), False)
sketch6.addGeometry(Part.LineSegment(Vector(74, 24, 0), Vector(61, 24, 0)), False)
sketch6.addGeometry(Part.LineSegment(Vector(78, 24, 0), Vector(78, 8, 0)), False)
sketch6.addGeometry(Part.LineSegment(Vector(78, 8, 0), Vector(90, 8, 0)), False)
sketch6.addGeometry(Part.LineSegment(Vector(90, 8, 0), Vector(90, 24, 0)), False)
sketch6.addGeometry(Part.LineSegment(Vector(90, 24, 0), Vector(78, 24, 0)), False)
sketch6.addConstraint(Sketcher.Constraint("Coincident", 0, 2, 1, 1))
sketch6.addConstraint(Sketcher.Constraint("Coincident", 1, 2, 2, 1))
sketch6.addConstraint(Sketcher.Constraint("Coincident", 2, 2, 3, 1))
sketch6.addConstraint(Sketcher.Constraint("Coincident", 3, 2, 0, 1))
sketch6.addConstraint(Sketcher.Constraint("Coincident", 4, 2, 5, 1))
sketch6.addConstraint(Sketcher.Constraint("Coincident", 5, 2, 6, 1))
sketch6.addConstraint(Sketcher.Constraint("Coincident", 6, 2, 7, 1))
sketch6.addConstraint(Sketcher.Constraint("Coincident", 7, 2, 4, 1))
sketch6.addConstraint(Sketcher.Constraint("Vertical", 0))
sketch6.addConstraint(Sketcher.Constraint("Horizontal", 1))
sketch6.addConstraint(Sketcher.Constraint("Vertical", 2))
sketch6.addConstraint(Sketcher.Constraint("Horizontal", 3))
sketch6.addConstraint(Sketcher.Constraint("Vertical", 4))
sketch6.addConstraint(Sketcher.Constraint("Horizontal", 5))
sketch6.addConstraint(Sketcher.Constraint("Vertical", 6))
sketch6.addConstraint(Sketcher.Constraint("Horizontal", 7))
sketch6.addConstraint(Sketcher.Constraint("Horizontal", 1, 2, 4, 2))
sketch6.addConstraint(Sketcher.Constraint("Horizontal", 3, 2, 6, 2))
sketch6.addConstraint(Sketcher.Constraint("Equal", 3, 5))
sketch6.addConstraint(Sketcher.Constraint("DistanceX", 1, 1, 1, 2, Q("12.6 mm")))
sketch6.addConstraint(Sketcher.Constraint("DistanceY", -1, 1, 0, 2, Q("8 mm")))
sketch6.addConstraint(Sketcher.Constraint("DistanceY", 0, 2, 0, 1, Q("15.81 mm")))
sketch6.addConstraint(Sketcher.Constraint("DistanceX", -1, 1, 0, 2, Q("61.08 mm")))
sketch6.addConstraint(Sketcher.Constraint("DistanceX", -1, 1, 4, 2, Q("77.72 mm")))
sketch6.setExpression("Constraints[19]", "Params.sketch6_width")
sketch6.setExpression("Constraints[21]", "Params.sketch6_height")
pocket1 = body.newObject("PartDesign::Pocket", "Pocket")
pocket1.Profile = sketch6
pocket1.Type = "ThroughAll"

sketch7 = body.newObject("Sketcher::SketchObject", "Sketch006")
sketch7.AttachmentSupport = (doc.getObject("XY_Plane"), [""])
sketch7.MapMode = "FlatFace"
sketch7.addGeometry(Part.LineSegment(Vector(83, 24, 0), Vector(83, 8, 0)), False)
sketch7.addGeometry(Part.LineSegment(Vector(83, 8, 0), Vector(70, 8, 0)), False)
sketch7.addGeometry(Part.LineSegment(Vector(70, 8, 0), Vector(70, 24, 0)), False)
sketch7.addGeometry(Part.LineSegment(Vector(70, 24, 0), Vector(83, 24, 0)), False)
sketch7.addConstraint(Sketcher.Constraint("Coincident", 0, 2, 1, 1))
sketch7.addConstraint(Sketcher.Constraint("Coincident", 1, 2, 2, 1))
sketch7.addConstraint(Sketcher.Constraint("Coincident", 2, 2, 3, 1))
sketch7.addConstraint(Sketcher.Constraint("Coincident", 3, 2, 0, 1))
sketch7.addConstraint(Sketcher.Constraint("Vertical", 0))
sketch7.addConstraint(Sketcher.Constraint("Horizontal", 1))
sketch7.addConstraint(Sketcher.Constraint("Vertical", 2))
sketch7.addConstraint(Sketcher.Constraint("Horizontal", 3))
sketch7.addConstraint(Sketcher.Constraint("DistanceX", 1, 2, 1, 1, Q("12.6 mm")))
sketch7.addConstraint(Sketcher.Constraint("DistanceY", -1, 1, 0, 2, Q("8 mm")))
sketch7.addConstraint(Sketcher.Constraint("DistanceY", 0, 2, 0, 1, Q("15.81 mm")))
sketch7.addConstraint(Sketcher.Constraint("DistanceX", -1, 1, 0, 2, Q("82.59 mm")))
sketch7.setExpression("Constraints[8]", "Params.sketch7_width")
sketch7.setExpression("Constraints[10]", "Params.sketch7_height")
pocket2 = body.newObject("PartDesign::Pocket", "Pocket001")
pocket2.Profile = sketch7
pocket2.Type = "ThroughAll"
pocket2.Reversed = True

sketch8 = body.newObject("Sketcher::SketchObject", "Sketch007")
sketch8.AttachmentSupport = (doc.getObject("XZ_Plane"), [""])
sketch8.MapMode = "FlatFace"
sketch8.AttachmentOffset = App.Placement(Vector(0, 0, -10), App.Rotation())
sketch8.addGeometry(Part.Circle(Vector(6.1, -82.3, 0), Vector(0, 0, 1), 1.6), False)
sketch8.addGeometry(Part.Circle(Vector(6.1, -5.8, 0), Vector(0, 0, 1), 1.6), False)
sketch8.addGeometry(Part.Circle(Vector(86.9, -5.8, 0), Vector(0, 0, 1), 1.6), False)
sketch8.addConstraint(Sketcher.Constraint("Equal", 0, 1))
sketch8.addConstraint(Sketcher.Constraint("Equal", 1, 2))
sketch8.addConstraint(Sketcher.Constraint("Horizontal", 1, 3, 2, 3))
sketch8.addConstraint(Sketcher.Constraint("Vertical", 0, 3, 1, 3))
sketch8.addConstraint(Sketcher.Constraint("Diameter", 0, Q("3.2639 mm")))
sketch8.addConstraint(Sketcher.Constraint("DistanceX", -1, 1, 0, 3, Q("6.12 mm")))
sketch8.addConstraint(Sketcher.Constraint("DistanceY", 0, 3, -1, 1, Q("82.28 mm")))
sketch8.addConstraint(Sketcher.Constraint("DistanceY", 1, 3, -1, 1, Q("5.83 mm")))
sketch8.addConstraint(Sketcher.Constraint("DistanceX", -1, 1, 2, 3, Q("86.89 mm")))
doc.recompute()
hole = body.newObject("PartDesign::Hole", "Hole")
hole.Profile = sketch8
hole.ThreadType = "None"
hole.setExpression("Diameter", "Params.hole_diameter")
hole.DepthType = "Dimension"
hole.setExpression("Depth", "Params.hole_depth")
hole.DrillPoint = "Angled"
hole.DrillPointAngle = 118
hole.HoleCutType = "Countersink"
hole.setExpression("HoleCutDiameter", "Params.hole_csink_diameter")
hole.HoleCutCountersinkAngle = 90
hole.Reversed = True

sketch9 = body.newObject("Sketcher::SketchObject", "Sketch008")
sketch9.AttachmentSupport = (doc.getObject("XZ_Plane"), [""])
sketch9.MapMode = "FlatFace"
sketch9.AttachmentOffset = App.Placement(Vector(0, 0, -35), App.Rotation())
sketch9.addGeometry(Part.LineSegment(Vector(91.5, -89.5, 0), Vector(1.5, -89.5, 0)), False)
sketch9.addGeometry(Part.ArcOfCircle(Part.Circle(Vector(1.5, -86.5, 0), Vector(0, 0, 1), 3), math.radians(180), math.radians(270)), False)
sketch9.addGeometry(Part.LineSegment(Vector(-1.5, -86.5, 0), Vector(-1.5, -1.5, 0)), False)
sketch9.addGeometry(Part.ArcOfCircle(Part.Circle(Vector(1.5, -1.5, 0), Vector(0, 0, 1), 3), math.radians(90), math.radians(180)), False)
sketch9.addGeometry(Part.LineSegment(Vector(1.5, 1.5, 0), Vector(91.5, 1.5, 0)), False)
sketch9.addGeometry(Part.ArcOfCircle(Part.Circle(Vector(91.5, -1.5, 0), Vector(0, 0, 1), 3), math.radians(0), math.radians(90)), False)
sketch9.addGeometry(Part.LineSegment(Vector(94.5, -1.5, 0), Vector(94.5, -86.5, 0)), False)
sketch9.addGeometry(Part.ArcOfCircle(Part.Circle(Vector(91.5, -86.5, 0), Vector(0, 0, 1), 3), math.radians(-90), math.radians(0)), False)
sketch9.addGeometry(Part.LineSegment(Vector(3.5, -87.5, 0), Vector(89.5, -87.5, 0)), False)
sketch9.addGeometry(Part.ArcOfCircle(Part.Circle(Vector(89.5, -84.5, 0), Vector(0, 0, 1), 3), math.radians(-90), math.radians(0)), False)
sketch9.addGeometry(Part.LineSegment(Vector(92.5, -84.5, 0), Vector(92.5, -3.5, 0)), False)
sketch9.addGeometry(Part.ArcOfCircle(Part.Circle(Vector(89.5, -3.5, 0), Vector(0, 0, 1), 3), math.radians(0), math.radians(90)), False)
sketch9.addGeometry(Part.LineSegment(Vector(89.5, -0.5, 0), Vector(3.5, -0.5, 0)), False)
sketch9.addGeometry(Part.ArcOfCircle(Part.Circle(Vector(3.5, -3.5, 0), Vector(0, 0, 1), 3), math.radians(90), math.radians(180)), False)
sketch9.addGeometry(Part.LineSegment(Vector(0.5, -3.5, 0), Vector(0.5, -84.5, 0)), False)
sketch9.addGeometry(Part.ArcOfCircle(Part.Circle(Vector(3.5, -84.5, 0), Vector(0, 0, 1), 3), math.radians(180), math.radians(270)), False)
sketch9.addConstraint(Sketcher.Constraint("Tangent", 0, 2, 1, 2))
sketch9.addConstraint(Sketcher.Constraint("Tangent", 1, 1, 2, 1))
sketch9.addConstraint(Sketcher.Constraint("Tangent", 2, 2, 3, 2))
sketch9.addConstraint(Sketcher.Constraint("Tangent", 3, 1, 4, 1))
sketch9.addConstraint(Sketcher.Constraint("Tangent", 4, 2, 5, 2))
sketch9.addConstraint(Sketcher.Constraint("Tangent", 5, 1, 6, 1))
sketch9.addConstraint(Sketcher.Constraint("Tangent", 6, 2, 7, 2))
sketch9.addConstraint(Sketcher.Constraint("Tangent", 7, 1, 0, 1))
sketch9.addConstraint(Sketcher.Constraint("Tangent", 8, 2, 9, 1))
sketch9.addConstraint(Sketcher.Constraint("Tangent", 9, 2, 10, 1))
sketch9.addConstraint(Sketcher.Constraint("Tangent", 10, 2, 11, 1))
sketch9.addConstraint(Sketcher.Constraint("Tangent", 11, 2, 12, 1))
sketch9.addConstraint(Sketcher.Constraint("Tangent", 12, 2, 13, 1))
sketch9.addConstraint(Sketcher.Constraint("Tangent", 13, 2, 14, 1))
sketch9.addConstraint(Sketcher.Constraint("Tangent", 14, 2, 15, 1))
sketch9.addConstraint(Sketcher.Constraint("Tangent", 15, 2, 8, 1))
sketch9.addConstraint(Sketcher.Constraint("Horizontal", 0))
sketch9.addConstraint(Sketcher.Constraint("Vertical", 2))
sketch9.addConstraint(Sketcher.Constraint("Horizontal", 4))
sketch9.addConstraint(Sketcher.Constraint("Vertical", 6))
sketch9.addConstraint(Sketcher.Constraint("Horizontal", 8))
sketch9.addConstraint(Sketcher.Constraint("Vertical", 10))
sketch9.addConstraint(Sketcher.Constraint("Horizontal", 12))
sketch9.addConstraint(Sketcher.Constraint("Vertical", 14))
sketch9.addConstraint(Sketcher.Constraint("Equal", 1, 3))
sketch9.addConstraint(Sketcher.Constraint("Equal", 3, 5))
sketch9.addConstraint(Sketcher.Constraint("Equal", 5, 7))
sketch9.addConstraint(Sketcher.Constraint("Equal", 7, 9))
sketch9.addConstraint(Sketcher.Constraint("Equal", 9, 11))
sketch9.addConstraint(Sketcher.Constraint("Equal", 11, 13))
sketch9.addConstraint(Sketcher.Constraint("Equal", 13, 15))
sketch9.addConstraint(Sketcher.Constraint("Symmetric", 2, 2, 3, 1, -1, 1))
sketch9.addConstraint(Sketcher.Constraint("Radius", 1, Q("3 mm")))
sketch9.addConstraint(Sketcher.Constraint("DistanceX", 0, 2, 0, 1, Q("90 mm")))
sketch9.addConstraint(Sketcher.Constraint("DistanceX", 8, 1, 8, 2, Q("86 mm")))
sketch9.addConstraint(Sketcher.Constraint("DistanceY", 2, 1, 2, 2, Q("85 mm")))
sketch9.addConstraint(Sketcher.Constraint("DistanceY", 10, 1, 10, 2, Q("81 mm")))
sketch9.addConstraint(Sketcher.Constraint("DistanceX", 9, 3, 7, 3, Q("2 mm")))
sketch9.addConstraint(Sketcher.Constraint("DistanceY", 7, 3, 9, 3, Q("2 mm")))
sketch9.setExpression("Constraints[32]", "Params.sketch9_radius")
sketch9.setExpression("Constraints[33]", "Params.sketch9_width")
sketch9.setExpression("Constraints[34]", "Params.sketch9_width2")
sketch9.setExpression("Constraints[35]", "Params.sketch9_height")
sketch9.setExpression("Constraints[36]", "Params.sketch9_height2")
pad6 = body.newObject("PartDesign::Pad", "Pad005")
pad6.Profile = sketch9
pad6.setExpression("Length", "Params.pad6_length")
pad6.Reversed = True

doc.recompute()
